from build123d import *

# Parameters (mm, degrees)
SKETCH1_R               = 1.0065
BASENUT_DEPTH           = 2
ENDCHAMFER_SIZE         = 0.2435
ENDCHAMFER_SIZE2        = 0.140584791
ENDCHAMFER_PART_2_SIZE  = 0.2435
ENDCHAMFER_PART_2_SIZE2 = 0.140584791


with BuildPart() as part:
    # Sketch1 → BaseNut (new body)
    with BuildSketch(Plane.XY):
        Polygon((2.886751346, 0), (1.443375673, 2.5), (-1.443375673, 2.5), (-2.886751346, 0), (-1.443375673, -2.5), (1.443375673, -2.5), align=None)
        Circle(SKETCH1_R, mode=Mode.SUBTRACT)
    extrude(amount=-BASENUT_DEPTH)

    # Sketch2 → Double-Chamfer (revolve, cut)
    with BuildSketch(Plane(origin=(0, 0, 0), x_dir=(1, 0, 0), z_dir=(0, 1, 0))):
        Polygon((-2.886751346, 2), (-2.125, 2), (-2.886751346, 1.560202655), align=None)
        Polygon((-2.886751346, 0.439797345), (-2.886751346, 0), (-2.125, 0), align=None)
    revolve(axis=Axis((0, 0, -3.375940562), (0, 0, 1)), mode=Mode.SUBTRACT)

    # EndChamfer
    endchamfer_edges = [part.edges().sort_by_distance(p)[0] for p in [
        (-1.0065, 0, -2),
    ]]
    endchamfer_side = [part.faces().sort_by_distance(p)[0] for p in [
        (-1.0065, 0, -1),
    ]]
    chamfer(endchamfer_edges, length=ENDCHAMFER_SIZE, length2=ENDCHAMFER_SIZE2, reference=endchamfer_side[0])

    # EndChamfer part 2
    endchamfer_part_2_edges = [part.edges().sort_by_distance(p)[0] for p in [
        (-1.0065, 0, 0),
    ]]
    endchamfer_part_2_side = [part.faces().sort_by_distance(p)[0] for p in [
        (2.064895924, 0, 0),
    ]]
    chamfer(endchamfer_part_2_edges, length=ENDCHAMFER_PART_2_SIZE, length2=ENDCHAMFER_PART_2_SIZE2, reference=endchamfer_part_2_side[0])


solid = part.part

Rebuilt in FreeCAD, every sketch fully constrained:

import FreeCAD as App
import Part
import Sketcher
Q = App.Units.Quantity


def edges_at(feature, points):
    """Names of the edges that pass closest to the given points."""
    edges = feature.Shape.Edges
    near = lambda p: min(range(len(edges)), key=lambda i: edges[i].distToShape(Part.Vertex(*p))[0])
    return sorted({f"Edge{near(p) + 1}" for p in points})


def add_polygon(sketch, points):
    """Adds a closed chain of lines whose ends are joined by coincident constraints."""
    first, n = sketch.GeometryCount, len(points)
    for a, b in zip(points, points[1:] + points[:1]):
        sketch.addGeometry(Part.LineSegment(App.Vector(*a, 0), App.Vector(*b, 0)), False)
    for i in range(n):
        sketch.addConstraint(Sketcher.Constraint("Coincident", first + i, 2, first + (i + 1) % n, 1))

doc = App.newDocument("Part")
body = doc.addObject("PartDesign::Body", "Body")

# Sketch on XY plane
sketch1 = body.newObject("Sketcher::SketchObject", "Sketch")
sketch1.AttachmentSupport = (doc.getObject("XY_Plane"), [""])
sketch1.MapMode = "FlatFace"
add_polygon(sketch1, [(2.9, 0), (1.4, 2.5), (-1.4, 2.5), (-2.9, 0), (-1.4, -2.5), (1.4, -2.5)])  # lines 0-5
sketch1.addGeometry(Part.Circle(App.Vector(0, 0, 0), App.Vector(0, 0, 1), 1), False)  # 6
sketch1.addConstraint([
    Sketcher.Constraint("Horizontal", 1),
    Sketcher.Constraint("Horizontal", 4),
    Sketcher.Constraint("Coincident", 6, 3, -1, 1),
    Sketcher.Constraint("Symmetric", 0, 2, 3, 2, -1, 1),
    Sketcher.Constraint("Symmetric", 2, 2, 5, 2, -1, 1),
    Sketcher.Constraint("PointOnObject", 2, 2, -1),
    Sketcher.Constraint("Parallel", 2, 5),
    Sketcher.Constraint("Vertical", 1, 2, 3, 2),
    Sketcher.Constraint("Angle", 0, Q("120 deg")),
    Sketcher.Constraint("Diameter", 6, Q("2.013 mm")),
    Sketcher.Constraint("DistanceY", 3, 2, 1, 2, Q("5 mm")),
    Sketcher.Constraint("DistanceX", 1, 2, 1, 1, Q("2.886751 mm")),
])
pad1 = body.newObject("PartDesign::Pad", "Pad")
pad1.Profile = sketch1
pad1.Length = 2
pad1.Reversed = True

# Sketch on XZ plane
sketch2 = body.newObject("Sketcher::SketchObject", "Sketch001")
sketch2.AttachmentSupport = (doc.getObject("XZ_Plane"), [""])
sketch2.MapMode = "FlatFace"
add_polygon(sketch2, [(-2.12, -2), (-2.89, -2), (-2.89, -1.56)])  # lines 0-2
add_polygon(sketch2, [(-2.89, -0.44), (-2.89, 0), (-2.12, 0)])  # lines 3-5
sketch2.addConstraint([
    Sketcher.Constraint("Horizontal", 0),
    Sketcher.Constraint("Vertical", 1),
    Sketcher.Constraint("Vertical", 3),
    Sketcher.Constraint("Horizontal", 4),
    Sketcher.Constraint("PointOnObject", 3, 2, -1),
    Sketcher.Constraint("Vertical", 1, 2, 3, 2),
    Sketcher.Constraint("Vertical", 2, 2, 4, 2),
    Sketcher.Constraint("Equal", 1, 3),
    Sketcher.Constraint("Angle", 2, Q("-30 deg")),
    Sketcher.Constraint("DistanceY", 0, 2, -1, 1, Q("2 mm")),
    Sketcher.Constraint("DistanceX", 2, 2, -1, 1, Q("2.125 mm")),
    Sketcher.Constraint("DistanceX", 0, 2, 0, 1, Q("0.761751 mm")),
])
groove = body.newObject("PartDesign::Groove", "Groove")
groove.Profile = sketch2
groove.ReferenceAxis = (sketch2, ["V_Axis"])
groove.Angle = 360
doc.recompute()

chamfer = body.newObject("PartDesign::Chamfer", "Chamfer")
chamfer.Base = (groove, edges_at(groove, [(-1.006, 0, -2)]))
chamfer.ChamferType = "Two distances"
chamfer.Size = 0.2435
chamfer.Size2 = 0.140585
chamfer.FlipDirection = True
doc.recompute()

chamfer2 = body.newObject("PartDesign::Chamfer", "Chamfer001")
chamfer2.Base = (chamfer, edges_at(chamfer, [(-1.006, 0, 0)]))
chamfer2.ChamferType = "Two distances"
chamfer2.Size = 0.2435
chamfer2.Size2 = 0.140585
chamfer2.FlipDirection = True

doc.recompute()
